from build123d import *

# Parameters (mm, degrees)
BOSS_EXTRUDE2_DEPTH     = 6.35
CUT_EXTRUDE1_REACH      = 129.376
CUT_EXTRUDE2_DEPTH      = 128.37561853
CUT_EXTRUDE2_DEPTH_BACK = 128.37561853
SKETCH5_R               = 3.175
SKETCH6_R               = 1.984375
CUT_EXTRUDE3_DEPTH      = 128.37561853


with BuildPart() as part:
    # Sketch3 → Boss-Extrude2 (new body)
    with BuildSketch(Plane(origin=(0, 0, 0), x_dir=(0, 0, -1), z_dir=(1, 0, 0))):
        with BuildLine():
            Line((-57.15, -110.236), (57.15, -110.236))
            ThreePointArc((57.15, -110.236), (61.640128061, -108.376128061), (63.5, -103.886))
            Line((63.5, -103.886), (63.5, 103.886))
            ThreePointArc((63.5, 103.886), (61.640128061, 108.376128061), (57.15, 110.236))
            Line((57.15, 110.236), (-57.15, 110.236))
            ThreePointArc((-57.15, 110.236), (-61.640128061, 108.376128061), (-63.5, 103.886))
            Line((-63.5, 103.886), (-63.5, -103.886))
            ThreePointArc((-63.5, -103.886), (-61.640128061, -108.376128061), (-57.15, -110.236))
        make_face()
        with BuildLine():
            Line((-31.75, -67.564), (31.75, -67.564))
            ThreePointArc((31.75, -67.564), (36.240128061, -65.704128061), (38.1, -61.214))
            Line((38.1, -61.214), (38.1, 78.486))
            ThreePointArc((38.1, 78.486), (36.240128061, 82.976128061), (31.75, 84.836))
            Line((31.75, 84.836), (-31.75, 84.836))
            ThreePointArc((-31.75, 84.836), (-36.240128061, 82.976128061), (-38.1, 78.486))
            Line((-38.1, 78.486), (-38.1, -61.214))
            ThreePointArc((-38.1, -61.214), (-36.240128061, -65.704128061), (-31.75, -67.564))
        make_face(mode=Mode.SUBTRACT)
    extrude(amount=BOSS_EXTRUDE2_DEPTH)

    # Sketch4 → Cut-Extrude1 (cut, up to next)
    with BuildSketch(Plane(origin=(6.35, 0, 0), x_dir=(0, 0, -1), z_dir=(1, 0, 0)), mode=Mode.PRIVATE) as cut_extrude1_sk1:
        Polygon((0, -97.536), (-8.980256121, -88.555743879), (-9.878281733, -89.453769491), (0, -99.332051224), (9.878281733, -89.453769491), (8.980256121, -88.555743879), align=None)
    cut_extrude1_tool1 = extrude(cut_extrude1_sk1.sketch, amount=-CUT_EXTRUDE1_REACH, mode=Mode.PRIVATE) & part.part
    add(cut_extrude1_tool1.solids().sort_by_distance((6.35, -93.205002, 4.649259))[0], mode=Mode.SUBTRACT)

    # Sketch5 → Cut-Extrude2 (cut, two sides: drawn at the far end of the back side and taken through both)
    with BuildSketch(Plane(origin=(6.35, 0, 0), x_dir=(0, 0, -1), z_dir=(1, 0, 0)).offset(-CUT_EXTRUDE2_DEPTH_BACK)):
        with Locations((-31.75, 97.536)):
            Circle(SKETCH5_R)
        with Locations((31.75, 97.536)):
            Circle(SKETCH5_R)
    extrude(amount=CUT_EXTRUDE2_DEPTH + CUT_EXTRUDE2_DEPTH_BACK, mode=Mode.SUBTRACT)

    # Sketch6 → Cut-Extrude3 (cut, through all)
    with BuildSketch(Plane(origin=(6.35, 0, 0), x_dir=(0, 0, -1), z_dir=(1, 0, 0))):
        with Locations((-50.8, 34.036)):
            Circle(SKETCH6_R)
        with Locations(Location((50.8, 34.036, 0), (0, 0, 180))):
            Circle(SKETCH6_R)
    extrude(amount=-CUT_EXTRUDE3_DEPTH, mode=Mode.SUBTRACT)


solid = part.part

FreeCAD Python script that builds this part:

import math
import FreeCAD as App
import Part
import Sketcher

V = App.Vector
Q = App.Units.Quantity


def add_polygon(sketch, points):
    """Adds a closed chain of lines whose ends are joined by coincident constraints."""
    first, n = sketch.GeometryCount, len(points)
    for a, b in zip(points, points[1:] + points[:1]):
        sketch.addGeometry(Part.LineSegment(App.Vector(*a, 0), App.Vector(*b, 0)), False)
    for i in range(n):
        sketch.addConstraint(Sketcher.Constraint("Coincident", first + i, 2, first + (i + 1) % n, 1))

doc = App.newDocument("Part")
params = doc.addObject("Spreadsheet::Sheet", "Params")
for row, (alias, value) in enumerate([
    ("sketch1_radius", "0.25 in"),
    ("sketch1_width", "5.5 in"),
    ("sketch1_height", "4.5 in"),
    ("sketch1_height2", "2.5 in"),
    ("sketch1_width2", "8.18 in"),
    ("pad1_length", "0.25 in"),
    ("sketch2_length", "0.5 in"),
    ("sketch2_length2", "0.05 in"),
    ("sketch3_diameter", "0.25 in"),
    ("sketch4_diameter", "0.15625 in"),
], start=1):
    params.set(f"A{row}", alias)
    params.set(f"B{row}", "=" + value)
    params.setAlias(f"B{row}", alias)

body = doc.addObject("PartDesign::Body", "Body")

sketch1 = doc.addObject("Sketcher::SketchObject", "Sketch")
body.addObject(sketch1)
sketch1.AttachmentSupport = (doc.YZ_Plane, [""])
sketch1.MapMode = "FlatFace"
sketch1.addGeometry(Part.LineSegment(V(-110, 57, 0), V(-110, -57, 0)), False)
sketch1.addGeometry(Part.ArcOfCircle(Part.Circle(V(-104, -57, 0), V(0, 0, 1), 6), math.radians(180), math.radians(270)), False)
sketch1.addGeometry(Part.LineSegment(V(-104, -64, 0), V(104, -64, 0)), False)
sketch1.addGeometry(Part.ArcOfCircle(Part.Circle(V(104, -57, 0), V(0, 0, 1), 6), math.radians(-90), math.radians(0)), False)
sketch1.addGeometry(Part.LineSegment(V(110, -57, 0), V(110, 57, 0)), False)
sketch1.addGeometry(Part.ArcOfCircle(Part.Circle(V(104, 57, 0), V(0, 0, 1), 6), math.radians(0), math.radians(90)), False)
sketch1.addGeometry(Part.LineSegment(V(104, 64, 0), V(-104, 64, 0)), False)
sketch1.addGeometry(Part.ArcOfCircle(Part.Circle(V(-104, 57, 0), V(0, 0, 1), 6), math.radians(90), math.radians(180)), False)
sketch1.addGeometry(Part.LineSegment(V(-68, -32, 0), V(-68, 32, 0)), False)
sketch1.addGeometry(Part.ArcOfCircle(Part.Circle(V(-61, 32, 0), V(0, 0, 1), 6), math.radians(90), math.radians(180)), False)
sketch1.addGeometry(Part.LineSegment(V(-61, 38, 0), V(78, 38, 0)), False)
sketch1.addGeometry(Part.ArcOfCircle(Part.Circle(V(78, 32, 0), V(0, 0, 1), 6), math.radians(0), math.radians(90)), False)
sketch1.addGeometry(Part.LineSegment(V(85, 32, 0), V(85, -32, 0)), False)
sketch1.addGeometry(Part.ArcOfCircle(Part.Circle(V(78, -32, 0), V(0, 0, 1), 6), math.radians(-90), math.radians(0)), False)
sketch1.addGeometry(Part.LineSegment(V(78, -38, 0), V(-61, -38, 0)), False)
sketch1.addGeometry(Part.ArcOfCircle(Part.Circle(V(-61, -32, 0), V(0, 0, 1), 6), math.radians(180), math.radians(270)), False)
sketch1.addConstraint(Sketcher.Constraint("Tangent", 0, 2, 1, 1))
sketch1.addConstraint(Sketcher.Constraint("Tangent", 1, 2, 2, 1))
sketch1.addConstraint(Sketcher.Constraint("Tangent", 2, 2, 3, 1))
sketch1.addConstraint(Sketcher.Constraint("Tangent", 3, 2, 4, 1))
sketch1.addConstraint(Sketcher.Constraint("Tangent", 4, 2, 5, 1))
sketch1.addConstraint(Sketcher.Constraint("Tangent", 5, 2, 6, 1))
sketch1.addConstraint(Sketcher.Constraint("Tangent", 6, 2, 7, 1))
sketch1.addConstraint(Sketcher.Constraint("Tangent", 7, 2, 0, 1))
sketch1.addConstraint(Sketcher.Constraint("Tangent", 8, 2, 9, 2))
sketch1.addConstraint(Sketcher.Constraint("Tangent", 9, 1, 10, 1))
sketch1.addConstraint(Sketcher.Constraint("Tangent", 10, 2, 11, 2))
sketch1.addConstraint(Sketcher.Constraint("Tangent", 11, 1, 12, 1))
sketch1.addConstraint(Sketcher.Constraint("Tangent", 12, 2, 13, 2))
sketch1.addConstraint(Sketcher.Constraint("Tangent", 13, 1, 14, 1))
sketch1.addConstraint(Sketcher.Constraint("Tangent", 14, 2, 15, 2))
sketch1.addConstraint(Sketcher.Constraint("Tangent", 15, 1, 8, 1))
sketch1.addConstraint(Sketcher.Constraint("Vertical", 0))
sketch1.addConstraint(Sketcher.Constraint("Horizontal", 2))
sketch1.addConstraint(Sketcher.Constraint("Vertical", 4))
sketch1.addConstraint(Sketcher.Constraint("Horizontal", 6))
sketch1.addConstraint(Sketcher.Constraint("Vertical", 8))
sketch1.addConstraint(Sketcher.Constraint("Horizontal", 10))
sketch1.addConstraint(Sketcher.Constraint("Vertical", 12))
sketch1.addConstraint(Sketcher.Constraint("Horizontal", 14))
sketch1.addConstraint(Sketcher.Constraint("Equal", 1, 3))
sketch1.addConstraint(Sketcher.Constraint("Equal", 3, 5))
sketch1.addConstraint(Sketcher.Constraint("Equal", 5, 7))
sketch1.addConstraint(Sketcher.Constraint("Equal", 7, 9))
sketch1.addConstraint(Sketcher.Constraint("Equal", 9, 11))
sketch1.addConstraint(Sketcher.Constraint("Equal", 11, 13))
sketch1.addConstraint(Sketcher.Constraint("Equal", 13, 15))
sketch1.addConstraint(Sketcher.Constraint("Symmetric", 1, 3, 5, 3, -1, 1))
sketch1.addConstraint(Sketcher.Constraint("Radius", 1, Q("0.25 in")))
sketch1.addConstraint(Sketcher.Constraint("DistanceX", 10, 1, 10, 2, Q("5.5 in")))
sketch1.addConstraint(Sketcher.Constraint("DistanceY", 0, 2, 0, 1, Q("4.5 in")))
sketch1.addConstraint(Sketcher.Constraint("DistanceY", 8, 1, 8, 2, Q("2.5 in")))
sketch1.addConstraint(Sketcher.Constraint("DistanceY", 9, 3, 7, 3, Q("1 in")))
sketch1.addConstraint(Sketcher.Constraint("DistanceX", 11, 3, 5, 3, Q("1 in")))
sketch1.addConstraint(Sketcher.Constraint("DistanceX", 2, 1, 2, 2, Q("8.18 in")))
sketch1.setExpression("Constraints[32]", "Params.sketch1_radius")
sketch1.setExpression("Constraints[33]", "Params.sketch1_width")
sketch1.setExpression("Constraints[34]", "Params.sketch1_height")
sketch1.setExpression("Constraints[35]", "Params.sketch1_height2")
sketch1.setExpression("Constraints[38]", "Params.sketch1_width2")
pad1 = doc.addObject("PartDesign::Pad", "Pad")
body.addObject(pad1)
pad1.Profile = sketch1
pad1.setExpression("Length", "Params.pad1_length")

sketch2 = doc.addObject("Sketcher::SketchObject", "Sketch001")
body.addObject(sketch2)
sketch2.AttachmentSupport = (doc.YZ_Plane, [""])
sketch2.MapMode = "FlatFace"
sketch2.AttachmentOffset = App.Placement(V(0, 0, 0.25 * 25.4), App.Rotation())
add_polygon(sketch2, [(-97.5, 0), (-88.6, 9), (-89.5, 9.9), (-99.3, 0), (-89.5, -9.9), (-88.6, -9)])
sketch2.addConstraint(Sketcher.Constraint("Symmetric", 1, 2, 3, 2, -1))
sketch2.addConstraint(Sketcher.Constraint("Symmetric", 0, 2, 4, 2, -1))
sketch2.addConstraint(Sketcher.Constraint("PointOnObject", 2, 2, -1))
sketch2.addConstraint(Sketcher.Constraint("PointOnObject", 5, 2, -1))
sketch2.addConstraint(Sketcher.Constraint("Perpendicular", 0, 1))
sketch2.addConstraint(Sketcher.Constraint("Perpendicular", 1, 2))
sketch2.addConstraint(Sketcher.Constraint("Perpendicular", 2, 3))
sketch2.addConstraint(Sketcher.Constraint("Distance", 0, Q("0.5 in")))
sketch2.addConstraint(Sketcher.Constraint("Distance", 1, Q("0.05 in")))
sketch2.addConstraint(Sketcher.Constraint("DistanceX", 5, 2, -1, 1, Q("3.84 in")))
sketch2.setExpression("Constraints[13]", "Params.sketch2_length")
sketch2.setExpression("Constraints[14]", "Params.sketch2_length2")
pocket1 = doc.addObject("PartDesign::Pocket", "Pocket")
body.addObject(pocket1)
pocket1.Profile = sketch2
pocket1.Type = "UpToFirst"

sketch3 = doc.addObject("Sketcher::SketchObject", "Sketch002")
body.addObject(sketch3)
sketch3.AttachmentSupport = (doc.YZ_Plane, [""])
sketch3.MapMode = "FlatFace"
sketch3.AttachmentOffset = App.Placement(V(0, 0, 0.25 * 25.4), App.Rotation())
sketch3.addGeometry(Part.Circle(V(97.5, 31.8, 0), V(0, 0, 1), 3.2), False)
sketch3.addGeometry(Part.Circle(V(97.5, -31.8, 0), V(0, 0, 1), 3.2), False)
sketch3.addConstraint(Sketcher.Constraint("Equal", 0, 1))
sketch3.addConstraint(Sketcher.Constraint("Symmetric", 0, 3, 1, 3, -1))
sketch3.addConstraint(Sketcher.Constraint("Diameter", 0, Q("0.25 in")))
sketch3.addConstraint(Sketcher.Constraint("DistanceY", 1, 3, 0, 3, Q("2.5 in")))
sketch3.addConstraint(Sketcher.Constraint("DistanceX", -1, 1, 0, 3, Q("3.84 in")))
sketch3.setExpression("Constraints[2]", "Params.sketch3_diameter")
pocket2 = doc.addObject("PartDesign::Pocket", "Pocket001")
body.addObject(pocket2)
pocket2.Profile = sketch3
pocket2.Type = "ThroughAll"
pocket2.Midplane = True

sketch4 = doc.addObject("Sketcher::SketchObject", "Sketch003")
body.addObject(sketch4)
sketch4.AttachmentSupport = (doc.YZ_Plane, [""])
sketch4.MapMode = "FlatFace"
sketch4.AttachmentOffset = App.Placement(V(0, 0, 0.25 * 25.4), App.Rotation())
sketch4.addGeometry(Part.Circle(V(34, 50.8, 0), V(0, 0, 1), 2), False)
sketch4.addGeometry(Part.Circle(V(34, -50.8, 0), V(0, 0, 1), 2), False)
sketch4.addConstraint(Sketcher.Constraint("Equal", 0, 1))
sketch4.addConstraint(Sketcher.Constraint("Symmetric", 0, 3, 1, 3, -1))
sketch4.addConstraint(Sketcher.Constraint("Diameter", 0, Q("0.15625 in")))
sketch4.addConstraint(Sketcher.Constraint("DistanceY", -1, 1, 0, 3, Q("2 in")))
sketch4.addConstraint(Sketcher.Constraint("DistanceX", -1, 1, 0, 3, Q("1.34 in")))
sketch4.setExpression("Constraints[2]", "Params.sketch4_diameter")
pocket3 = doc.addObject("PartDesign::Pocket", "Pocket002")
body.addObject(pocket3)
pocket3.Profile = sketch4
pocket3.Type = "ThroughAll"

doc.recompute()
